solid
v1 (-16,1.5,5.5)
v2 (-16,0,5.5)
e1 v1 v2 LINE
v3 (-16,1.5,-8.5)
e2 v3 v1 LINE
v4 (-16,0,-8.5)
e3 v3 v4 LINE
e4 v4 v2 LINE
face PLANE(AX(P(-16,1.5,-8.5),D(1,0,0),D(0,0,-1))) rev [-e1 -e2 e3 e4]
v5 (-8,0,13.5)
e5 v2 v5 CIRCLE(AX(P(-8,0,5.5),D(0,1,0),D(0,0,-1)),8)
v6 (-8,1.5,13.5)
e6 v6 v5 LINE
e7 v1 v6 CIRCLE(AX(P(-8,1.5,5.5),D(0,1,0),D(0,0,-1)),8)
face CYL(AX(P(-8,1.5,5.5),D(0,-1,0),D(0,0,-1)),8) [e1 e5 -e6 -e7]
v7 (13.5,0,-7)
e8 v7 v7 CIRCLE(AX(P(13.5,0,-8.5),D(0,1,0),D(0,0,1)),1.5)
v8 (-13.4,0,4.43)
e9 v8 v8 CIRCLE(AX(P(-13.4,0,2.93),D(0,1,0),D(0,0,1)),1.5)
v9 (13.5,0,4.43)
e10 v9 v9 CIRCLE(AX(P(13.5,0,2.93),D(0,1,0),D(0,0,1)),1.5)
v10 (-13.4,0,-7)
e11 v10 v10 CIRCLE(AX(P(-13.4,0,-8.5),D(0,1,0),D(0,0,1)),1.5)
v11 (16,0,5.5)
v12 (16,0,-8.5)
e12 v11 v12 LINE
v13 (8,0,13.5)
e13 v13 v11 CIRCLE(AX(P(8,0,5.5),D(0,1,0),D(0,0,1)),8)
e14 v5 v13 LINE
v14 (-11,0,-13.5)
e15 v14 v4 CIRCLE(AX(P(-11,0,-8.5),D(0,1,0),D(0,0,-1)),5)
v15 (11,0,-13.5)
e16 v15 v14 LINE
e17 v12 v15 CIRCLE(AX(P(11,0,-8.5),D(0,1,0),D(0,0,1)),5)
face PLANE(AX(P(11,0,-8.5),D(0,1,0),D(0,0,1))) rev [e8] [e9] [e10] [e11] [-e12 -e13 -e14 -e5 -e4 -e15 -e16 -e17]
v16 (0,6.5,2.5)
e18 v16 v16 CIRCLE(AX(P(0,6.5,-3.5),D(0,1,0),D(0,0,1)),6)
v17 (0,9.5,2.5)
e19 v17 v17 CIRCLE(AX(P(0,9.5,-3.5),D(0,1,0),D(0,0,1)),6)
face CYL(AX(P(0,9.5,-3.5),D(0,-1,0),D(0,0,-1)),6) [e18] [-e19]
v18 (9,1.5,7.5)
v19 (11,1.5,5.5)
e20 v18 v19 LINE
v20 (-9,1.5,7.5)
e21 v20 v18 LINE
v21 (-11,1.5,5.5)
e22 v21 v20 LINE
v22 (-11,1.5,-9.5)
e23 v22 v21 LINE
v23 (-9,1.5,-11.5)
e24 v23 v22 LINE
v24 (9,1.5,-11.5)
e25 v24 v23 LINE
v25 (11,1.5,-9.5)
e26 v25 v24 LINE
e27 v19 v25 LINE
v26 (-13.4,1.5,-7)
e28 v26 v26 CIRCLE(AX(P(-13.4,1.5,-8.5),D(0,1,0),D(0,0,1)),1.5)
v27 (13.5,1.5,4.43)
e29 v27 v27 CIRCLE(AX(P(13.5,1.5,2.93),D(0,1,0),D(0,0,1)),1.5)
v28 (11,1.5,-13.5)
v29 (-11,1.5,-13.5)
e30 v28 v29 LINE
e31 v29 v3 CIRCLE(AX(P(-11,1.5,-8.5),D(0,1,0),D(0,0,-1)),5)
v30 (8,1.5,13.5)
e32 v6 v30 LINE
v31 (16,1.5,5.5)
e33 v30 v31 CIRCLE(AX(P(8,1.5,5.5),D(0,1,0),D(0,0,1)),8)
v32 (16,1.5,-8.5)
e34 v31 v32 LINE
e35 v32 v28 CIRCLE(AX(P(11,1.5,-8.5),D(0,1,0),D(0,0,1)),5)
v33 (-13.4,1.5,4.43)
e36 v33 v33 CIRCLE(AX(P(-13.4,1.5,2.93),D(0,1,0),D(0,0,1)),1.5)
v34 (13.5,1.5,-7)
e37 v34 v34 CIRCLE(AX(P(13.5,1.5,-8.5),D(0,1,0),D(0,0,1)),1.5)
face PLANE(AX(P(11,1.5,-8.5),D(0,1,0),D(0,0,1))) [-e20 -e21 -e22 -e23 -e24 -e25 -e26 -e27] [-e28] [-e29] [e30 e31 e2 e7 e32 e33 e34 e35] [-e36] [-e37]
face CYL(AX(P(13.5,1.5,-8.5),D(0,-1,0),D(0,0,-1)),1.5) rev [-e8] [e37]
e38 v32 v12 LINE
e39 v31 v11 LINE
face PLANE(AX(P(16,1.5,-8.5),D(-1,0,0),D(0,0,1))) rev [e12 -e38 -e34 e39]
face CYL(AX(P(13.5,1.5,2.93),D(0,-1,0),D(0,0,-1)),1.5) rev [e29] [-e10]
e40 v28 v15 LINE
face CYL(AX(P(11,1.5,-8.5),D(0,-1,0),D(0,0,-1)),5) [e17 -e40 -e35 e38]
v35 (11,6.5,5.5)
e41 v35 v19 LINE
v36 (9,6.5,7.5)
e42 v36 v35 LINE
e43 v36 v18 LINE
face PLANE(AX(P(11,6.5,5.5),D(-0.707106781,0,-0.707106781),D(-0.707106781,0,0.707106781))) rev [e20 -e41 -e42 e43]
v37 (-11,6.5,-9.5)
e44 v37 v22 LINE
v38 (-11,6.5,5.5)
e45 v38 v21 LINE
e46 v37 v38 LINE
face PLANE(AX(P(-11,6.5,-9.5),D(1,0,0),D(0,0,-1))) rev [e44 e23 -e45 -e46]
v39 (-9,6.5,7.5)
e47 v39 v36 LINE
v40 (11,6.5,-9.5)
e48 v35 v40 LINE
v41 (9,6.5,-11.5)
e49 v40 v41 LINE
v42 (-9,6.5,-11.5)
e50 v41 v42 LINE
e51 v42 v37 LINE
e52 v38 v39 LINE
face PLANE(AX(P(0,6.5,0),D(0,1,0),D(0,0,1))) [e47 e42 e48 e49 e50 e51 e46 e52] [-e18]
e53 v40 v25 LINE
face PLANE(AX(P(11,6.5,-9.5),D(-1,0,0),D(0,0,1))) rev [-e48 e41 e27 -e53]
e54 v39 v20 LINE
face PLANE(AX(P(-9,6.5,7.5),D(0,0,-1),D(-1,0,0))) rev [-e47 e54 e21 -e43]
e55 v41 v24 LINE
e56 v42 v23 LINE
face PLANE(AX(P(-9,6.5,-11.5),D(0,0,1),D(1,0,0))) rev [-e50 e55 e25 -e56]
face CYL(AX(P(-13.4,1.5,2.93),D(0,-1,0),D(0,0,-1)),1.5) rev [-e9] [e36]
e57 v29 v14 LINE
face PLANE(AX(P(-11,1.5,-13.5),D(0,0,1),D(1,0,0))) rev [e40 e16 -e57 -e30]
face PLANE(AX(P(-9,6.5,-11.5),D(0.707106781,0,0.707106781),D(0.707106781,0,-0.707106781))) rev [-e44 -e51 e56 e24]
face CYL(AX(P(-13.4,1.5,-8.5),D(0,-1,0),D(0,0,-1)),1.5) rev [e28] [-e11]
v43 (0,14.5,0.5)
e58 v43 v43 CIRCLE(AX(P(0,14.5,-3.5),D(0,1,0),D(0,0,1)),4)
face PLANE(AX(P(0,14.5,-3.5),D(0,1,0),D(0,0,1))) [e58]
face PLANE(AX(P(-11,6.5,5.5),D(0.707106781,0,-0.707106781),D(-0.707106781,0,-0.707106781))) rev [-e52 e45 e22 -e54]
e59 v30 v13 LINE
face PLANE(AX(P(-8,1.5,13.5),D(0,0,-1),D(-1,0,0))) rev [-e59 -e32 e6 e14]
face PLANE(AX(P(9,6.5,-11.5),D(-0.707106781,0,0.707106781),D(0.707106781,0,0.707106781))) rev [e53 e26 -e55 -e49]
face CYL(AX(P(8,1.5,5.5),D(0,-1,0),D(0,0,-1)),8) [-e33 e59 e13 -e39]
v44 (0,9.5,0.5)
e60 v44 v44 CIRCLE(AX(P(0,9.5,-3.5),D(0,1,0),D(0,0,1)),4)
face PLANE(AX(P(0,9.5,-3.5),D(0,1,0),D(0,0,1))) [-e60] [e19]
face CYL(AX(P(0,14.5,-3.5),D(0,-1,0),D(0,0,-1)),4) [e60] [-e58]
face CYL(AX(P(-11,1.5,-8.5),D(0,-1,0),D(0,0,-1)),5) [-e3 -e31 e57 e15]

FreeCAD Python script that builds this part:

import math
import FreeCAD as App
import Part
import Sketcher
from FreeCAD import Vector


def add_polygon(sketch, points):
    """Adds a closed chain of lines whose ends are joined by coincident constraints."""
    first, n = sketch.GeometryCount, len(points)
    for a, b in zip(points, points[1:] + points[:1]):
        sketch.addGeometry(Part.LineSegment(App.Vector(*a, 0), App.Vector(*b, 0)), False)
    for i in range(n):
        sketch.addConstraint(Sketcher.Constraint("Coincident", first + i, 2, first + (i + 1) % n, 1))

doc = App.newDocument("Part")
body = doc.addObject("PartDesign::Body", "Body")

# Sketch on XZ plane
sketch1 = doc.addObject("Sketcher::SketchObject", "Sketch")
body.addObject(sketch1)
sketch1.AttachmentSupport = (doc.XZ_Plane, [""])
sketch1.MapMode = "FlatFace"
sketch1.addGeometry([
    Part.LineSegment(Vector(11, -13.5, 0), Vector(-11, -13.5, 0)),  # 0
    Part.ArcOfCircle(Part.Circle(Vector(-11, -8.5, 0), Vector(0, 0, 1), 5), math.radians(180), math.radians(270)),  # 1
    Part.LineSegment(Vector(-16, -8.5, 0), Vector(-16, 5.5, 0)),  # 2
    Part.ArcOfCircle(Part.Circle(Vector(-8, 5.5, 0), Vector(0, 0, 1), 8), math.radians(90), math.radians(180)),  # 3
    Part.LineSegment(Vector(-8, 13.5, 0), Vector(8, 13.5, 0)),  # 4
    Part.ArcOfCircle(Part.Circle(Vector(8, 5.5, 0), Vector(0, 0, 1), 8), math.radians(0), math.radians(90)),  # 5
    Part.LineSegment(Vector(16, 5.5, 0), Vector(16, -8.5, 0)),  # 6
    Part.ArcOfCircle(Part.Circle(Vector(11, -8.5, 0), Vector(0, 0, 1), 5), math.radians(-90), math.radians(0)),  # 7
    Part.Circle(Vector(13.5, 2.9, 0), Vector(0, 0, 1), 1.5),  # 8
    Part.Circle(Vector(-13.4, 2.9, 0), Vector(0, 0, 1), 1.5),  # 9
    Part.Circle(Vector(13.5, -8.5, 0), Vector(0, 0, 1), 1.5),  # 10
    Part.Circle(Vector(-13.4, -8.5, 0), Vector(0, 0, 1), 1.5),  # 11
], False)
sketch1.addConstraint([
    Sketcher.Constraint("Tangent", 0, 2, 1, 2),
    Sketcher.Constraint("Tangent", 1, 1, 2, 1),
    Sketcher.Constraint("Tangent", 2, 2, 3, 2),
    Sketcher.Constraint("Tangent", 3, 1, 4, 1),
    Sketcher.Constraint("Tangent", 4, 2, 5, 2),
    Sketcher.Constraint("Tangent", 5, 1, 6, 1),
    Sketcher.Constraint("Tangent", 6, 2, 7, 2),
    Sketcher.Constraint("Tangent", 7, 1, 0, 1),
    Sketcher.Constraint("Horizontal", 0),
    Sketcher.Constraint("Vertical", 2),
    Sketcher.Constraint("Horizontal", 4),
    Sketcher.Constraint("Vertical", 6),
    Sketcher.Constraint("Equal", 3, 5),
    Sketcher.Constraint("Equal", 1, 7),
    Sketcher.Constraint("Equal", 8, 9),
    Sketcher.Constraint("Equal", 9, 10),
    Sketcher.Constraint("Equal", 10, 11),
    Sketcher.Constraint("Horizontal", 8, 3, 9, 3),
    Sketcher.Constraint("Horizontal", 7, 3, 10, 3),
    Sketcher.Constraint("Horizontal", 10, 3, 11, 3),
    Sketcher.Constraint("Vertical", 8, 3, 10, 3),
    Sketcher.Constraint("Vertical", 9, 3, 11, 3),
    Sketcher.Constraint("Diameter", 8, 3.0),
    Sketcher.Constraint("Radius", 1, 5.0),
    Sketcher.Constraint("Radius", 3, 8.0),
    Sketcher.Constraint("DistanceX", 0, 2, 0, 1, 22.0),
    Sketcher.Constraint("DistanceY", 2, 1, 2, 2, 14.0),
    Sketcher.Constraint("DistanceX", 1, 3, -1, 1, 11.0),
    Sketcher.Constraint("DistanceY", 1, 3, -1, 1, 8.5),
    Sketcher.Constraint("DistanceX", -1, 1, 8, 3, 13.5),
    Sketcher.Constraint("DistanceX", 9, 3, -1, 1, 13.4),
    Sketcher.Constraint("DistanceY", -1, 1, 8, 3, 2.93),
])
pad1 = doc.addObject("PartDesign::Pad", "Pad")
body.addObject(pad1)
pad1.Profile = sketch1
pad1.Length = 1.5
pad1.Reversed = True

# Sketch on XZ plane
sketch2 = doc.addObject("Sketcher::SketchObject", "Sketch001")
body.addObject(sketch2)
sketch2.AttachmentSupport = (doc.XZ_Plane, [""])
sketch2.MapMode = "FlatFace"
sketch2.AttachmentOffset = App.Placement(Vector(0, 0, -1.5), App.Rotation())
add_polygon(sketch2, [(9, -11.5), (-9, -11.5), (-11, -9.5), (-11, 5.5), (-9, 7.5), (9, 7.5), (11, 5.5), (11, -9.5)])  # lines 0-7
sketch2.addConstraint([
    Sketcher.Constraint("Horizontal", 0),
    Sketcher.Constraint("Vertical", 2),
    Sketcher.Constraint("Horizontal", 4),
    Sketcher.Constraint("Vertical", 6),
    Sketcher.Constraint("Symmetric", 2, 2, 5, 2, -2),
    Sketcher.Constraint("Perpendicular", 1, 3),
    Sketcher.Constraint("Perpendicular", 3, 5),
    Sketcher.Constraint("Perpendicular", 5, 7),
    Sketcher.Constraint("Horizontal", 1, 2, 6, 2),
    Sketcher.Constraint("Vertical", 0, 2, 3, 2),
    Sketcher.Constraint("Vertical", 4, 2, 7, 2),
    Sketcher.Constraint("DistanceX", 0, 2, 0, 1, 18.0),
    Sketcher.Constraint("DistanceY", 2, 1, 2, 2, 15.0),
    Sketcher.Constraint("DistanceX", 1, 2, -1, 1, 11.0),
    Sketcher.Constraint("DistanceY", 0, 2, -1, 1, 11.5),
])
pad2 = doc.addObject("PartDesign::Pad", "Pad001")
body.addObject(pad2)
pad2.Profile = sketch2
pad2.Length = 5
pad2.Reversed = True

# Sketch on XZ plane
sketch3 = doc.addObject("Sketcher::SketchObject", "Sketch002")
body.addObject(sketch3)
sketch3.AttachmentSupport = (doc.XZ_Plane, [""])
sketch3.MapMode = "FlatFace"
sketch3.AttachmentOffset = App.Placement(Vector(0, 0, -6.5), App.Rotation())
sketch3.addGeometry(Part.Circle(Vector(0, -4, 0), Vector(0, 0, 1), 6), False)
sketch3.addConstraint([
    Sketcher.Constraint("PointOnObject", 0, 3, -2),
    Sketcher.Constraint("Diameter", 0, 12.0),
    Sketcher.Constraint("DistanceY", 0, 3, -1, 1, 3.5),
])
pad3 = doc.addObject("PartDesign::Pad", "Pad002")
body.addObject(pad3)
pad3.Profile = sketch3
pad3.Length = 3
pad3.Reversed = True

# Sketch on XZ plane
sketch4 = doc.addObject("Sketcher::SketchObject", "Sketch003")
body.addObject(sketch4)
sketch4.AttachmentSupport = (doc.XZ_Plane, [""])
sketch4.MapMode = "FlatFace"
sketch4.AttachmentOffset = App.Placement(Vector(0, 0, -9.5), App.Rotation())
sketch4.addGeometry(Part.Circle(Vector(0, -3.5, 0), Vector(0, 0, 1), 4), False)
sketch4.addConstraint([
    Sketcher.Constraint("PointOnObject", 0, 3, -2),
    Sketcher.Constraint("Diameter", 0, 8.0),
    Sketcher.Constraint("DistanceY", 0, 3, -1, 1, 3.5),
])
pad4 = doc.addObject("PartDesign::Pad", "Pad003")
body.addObject(pad4)
pad4.Profile = sketch4
pad4.Length = 5
pad4.Reversed = True

doc.recompute()
